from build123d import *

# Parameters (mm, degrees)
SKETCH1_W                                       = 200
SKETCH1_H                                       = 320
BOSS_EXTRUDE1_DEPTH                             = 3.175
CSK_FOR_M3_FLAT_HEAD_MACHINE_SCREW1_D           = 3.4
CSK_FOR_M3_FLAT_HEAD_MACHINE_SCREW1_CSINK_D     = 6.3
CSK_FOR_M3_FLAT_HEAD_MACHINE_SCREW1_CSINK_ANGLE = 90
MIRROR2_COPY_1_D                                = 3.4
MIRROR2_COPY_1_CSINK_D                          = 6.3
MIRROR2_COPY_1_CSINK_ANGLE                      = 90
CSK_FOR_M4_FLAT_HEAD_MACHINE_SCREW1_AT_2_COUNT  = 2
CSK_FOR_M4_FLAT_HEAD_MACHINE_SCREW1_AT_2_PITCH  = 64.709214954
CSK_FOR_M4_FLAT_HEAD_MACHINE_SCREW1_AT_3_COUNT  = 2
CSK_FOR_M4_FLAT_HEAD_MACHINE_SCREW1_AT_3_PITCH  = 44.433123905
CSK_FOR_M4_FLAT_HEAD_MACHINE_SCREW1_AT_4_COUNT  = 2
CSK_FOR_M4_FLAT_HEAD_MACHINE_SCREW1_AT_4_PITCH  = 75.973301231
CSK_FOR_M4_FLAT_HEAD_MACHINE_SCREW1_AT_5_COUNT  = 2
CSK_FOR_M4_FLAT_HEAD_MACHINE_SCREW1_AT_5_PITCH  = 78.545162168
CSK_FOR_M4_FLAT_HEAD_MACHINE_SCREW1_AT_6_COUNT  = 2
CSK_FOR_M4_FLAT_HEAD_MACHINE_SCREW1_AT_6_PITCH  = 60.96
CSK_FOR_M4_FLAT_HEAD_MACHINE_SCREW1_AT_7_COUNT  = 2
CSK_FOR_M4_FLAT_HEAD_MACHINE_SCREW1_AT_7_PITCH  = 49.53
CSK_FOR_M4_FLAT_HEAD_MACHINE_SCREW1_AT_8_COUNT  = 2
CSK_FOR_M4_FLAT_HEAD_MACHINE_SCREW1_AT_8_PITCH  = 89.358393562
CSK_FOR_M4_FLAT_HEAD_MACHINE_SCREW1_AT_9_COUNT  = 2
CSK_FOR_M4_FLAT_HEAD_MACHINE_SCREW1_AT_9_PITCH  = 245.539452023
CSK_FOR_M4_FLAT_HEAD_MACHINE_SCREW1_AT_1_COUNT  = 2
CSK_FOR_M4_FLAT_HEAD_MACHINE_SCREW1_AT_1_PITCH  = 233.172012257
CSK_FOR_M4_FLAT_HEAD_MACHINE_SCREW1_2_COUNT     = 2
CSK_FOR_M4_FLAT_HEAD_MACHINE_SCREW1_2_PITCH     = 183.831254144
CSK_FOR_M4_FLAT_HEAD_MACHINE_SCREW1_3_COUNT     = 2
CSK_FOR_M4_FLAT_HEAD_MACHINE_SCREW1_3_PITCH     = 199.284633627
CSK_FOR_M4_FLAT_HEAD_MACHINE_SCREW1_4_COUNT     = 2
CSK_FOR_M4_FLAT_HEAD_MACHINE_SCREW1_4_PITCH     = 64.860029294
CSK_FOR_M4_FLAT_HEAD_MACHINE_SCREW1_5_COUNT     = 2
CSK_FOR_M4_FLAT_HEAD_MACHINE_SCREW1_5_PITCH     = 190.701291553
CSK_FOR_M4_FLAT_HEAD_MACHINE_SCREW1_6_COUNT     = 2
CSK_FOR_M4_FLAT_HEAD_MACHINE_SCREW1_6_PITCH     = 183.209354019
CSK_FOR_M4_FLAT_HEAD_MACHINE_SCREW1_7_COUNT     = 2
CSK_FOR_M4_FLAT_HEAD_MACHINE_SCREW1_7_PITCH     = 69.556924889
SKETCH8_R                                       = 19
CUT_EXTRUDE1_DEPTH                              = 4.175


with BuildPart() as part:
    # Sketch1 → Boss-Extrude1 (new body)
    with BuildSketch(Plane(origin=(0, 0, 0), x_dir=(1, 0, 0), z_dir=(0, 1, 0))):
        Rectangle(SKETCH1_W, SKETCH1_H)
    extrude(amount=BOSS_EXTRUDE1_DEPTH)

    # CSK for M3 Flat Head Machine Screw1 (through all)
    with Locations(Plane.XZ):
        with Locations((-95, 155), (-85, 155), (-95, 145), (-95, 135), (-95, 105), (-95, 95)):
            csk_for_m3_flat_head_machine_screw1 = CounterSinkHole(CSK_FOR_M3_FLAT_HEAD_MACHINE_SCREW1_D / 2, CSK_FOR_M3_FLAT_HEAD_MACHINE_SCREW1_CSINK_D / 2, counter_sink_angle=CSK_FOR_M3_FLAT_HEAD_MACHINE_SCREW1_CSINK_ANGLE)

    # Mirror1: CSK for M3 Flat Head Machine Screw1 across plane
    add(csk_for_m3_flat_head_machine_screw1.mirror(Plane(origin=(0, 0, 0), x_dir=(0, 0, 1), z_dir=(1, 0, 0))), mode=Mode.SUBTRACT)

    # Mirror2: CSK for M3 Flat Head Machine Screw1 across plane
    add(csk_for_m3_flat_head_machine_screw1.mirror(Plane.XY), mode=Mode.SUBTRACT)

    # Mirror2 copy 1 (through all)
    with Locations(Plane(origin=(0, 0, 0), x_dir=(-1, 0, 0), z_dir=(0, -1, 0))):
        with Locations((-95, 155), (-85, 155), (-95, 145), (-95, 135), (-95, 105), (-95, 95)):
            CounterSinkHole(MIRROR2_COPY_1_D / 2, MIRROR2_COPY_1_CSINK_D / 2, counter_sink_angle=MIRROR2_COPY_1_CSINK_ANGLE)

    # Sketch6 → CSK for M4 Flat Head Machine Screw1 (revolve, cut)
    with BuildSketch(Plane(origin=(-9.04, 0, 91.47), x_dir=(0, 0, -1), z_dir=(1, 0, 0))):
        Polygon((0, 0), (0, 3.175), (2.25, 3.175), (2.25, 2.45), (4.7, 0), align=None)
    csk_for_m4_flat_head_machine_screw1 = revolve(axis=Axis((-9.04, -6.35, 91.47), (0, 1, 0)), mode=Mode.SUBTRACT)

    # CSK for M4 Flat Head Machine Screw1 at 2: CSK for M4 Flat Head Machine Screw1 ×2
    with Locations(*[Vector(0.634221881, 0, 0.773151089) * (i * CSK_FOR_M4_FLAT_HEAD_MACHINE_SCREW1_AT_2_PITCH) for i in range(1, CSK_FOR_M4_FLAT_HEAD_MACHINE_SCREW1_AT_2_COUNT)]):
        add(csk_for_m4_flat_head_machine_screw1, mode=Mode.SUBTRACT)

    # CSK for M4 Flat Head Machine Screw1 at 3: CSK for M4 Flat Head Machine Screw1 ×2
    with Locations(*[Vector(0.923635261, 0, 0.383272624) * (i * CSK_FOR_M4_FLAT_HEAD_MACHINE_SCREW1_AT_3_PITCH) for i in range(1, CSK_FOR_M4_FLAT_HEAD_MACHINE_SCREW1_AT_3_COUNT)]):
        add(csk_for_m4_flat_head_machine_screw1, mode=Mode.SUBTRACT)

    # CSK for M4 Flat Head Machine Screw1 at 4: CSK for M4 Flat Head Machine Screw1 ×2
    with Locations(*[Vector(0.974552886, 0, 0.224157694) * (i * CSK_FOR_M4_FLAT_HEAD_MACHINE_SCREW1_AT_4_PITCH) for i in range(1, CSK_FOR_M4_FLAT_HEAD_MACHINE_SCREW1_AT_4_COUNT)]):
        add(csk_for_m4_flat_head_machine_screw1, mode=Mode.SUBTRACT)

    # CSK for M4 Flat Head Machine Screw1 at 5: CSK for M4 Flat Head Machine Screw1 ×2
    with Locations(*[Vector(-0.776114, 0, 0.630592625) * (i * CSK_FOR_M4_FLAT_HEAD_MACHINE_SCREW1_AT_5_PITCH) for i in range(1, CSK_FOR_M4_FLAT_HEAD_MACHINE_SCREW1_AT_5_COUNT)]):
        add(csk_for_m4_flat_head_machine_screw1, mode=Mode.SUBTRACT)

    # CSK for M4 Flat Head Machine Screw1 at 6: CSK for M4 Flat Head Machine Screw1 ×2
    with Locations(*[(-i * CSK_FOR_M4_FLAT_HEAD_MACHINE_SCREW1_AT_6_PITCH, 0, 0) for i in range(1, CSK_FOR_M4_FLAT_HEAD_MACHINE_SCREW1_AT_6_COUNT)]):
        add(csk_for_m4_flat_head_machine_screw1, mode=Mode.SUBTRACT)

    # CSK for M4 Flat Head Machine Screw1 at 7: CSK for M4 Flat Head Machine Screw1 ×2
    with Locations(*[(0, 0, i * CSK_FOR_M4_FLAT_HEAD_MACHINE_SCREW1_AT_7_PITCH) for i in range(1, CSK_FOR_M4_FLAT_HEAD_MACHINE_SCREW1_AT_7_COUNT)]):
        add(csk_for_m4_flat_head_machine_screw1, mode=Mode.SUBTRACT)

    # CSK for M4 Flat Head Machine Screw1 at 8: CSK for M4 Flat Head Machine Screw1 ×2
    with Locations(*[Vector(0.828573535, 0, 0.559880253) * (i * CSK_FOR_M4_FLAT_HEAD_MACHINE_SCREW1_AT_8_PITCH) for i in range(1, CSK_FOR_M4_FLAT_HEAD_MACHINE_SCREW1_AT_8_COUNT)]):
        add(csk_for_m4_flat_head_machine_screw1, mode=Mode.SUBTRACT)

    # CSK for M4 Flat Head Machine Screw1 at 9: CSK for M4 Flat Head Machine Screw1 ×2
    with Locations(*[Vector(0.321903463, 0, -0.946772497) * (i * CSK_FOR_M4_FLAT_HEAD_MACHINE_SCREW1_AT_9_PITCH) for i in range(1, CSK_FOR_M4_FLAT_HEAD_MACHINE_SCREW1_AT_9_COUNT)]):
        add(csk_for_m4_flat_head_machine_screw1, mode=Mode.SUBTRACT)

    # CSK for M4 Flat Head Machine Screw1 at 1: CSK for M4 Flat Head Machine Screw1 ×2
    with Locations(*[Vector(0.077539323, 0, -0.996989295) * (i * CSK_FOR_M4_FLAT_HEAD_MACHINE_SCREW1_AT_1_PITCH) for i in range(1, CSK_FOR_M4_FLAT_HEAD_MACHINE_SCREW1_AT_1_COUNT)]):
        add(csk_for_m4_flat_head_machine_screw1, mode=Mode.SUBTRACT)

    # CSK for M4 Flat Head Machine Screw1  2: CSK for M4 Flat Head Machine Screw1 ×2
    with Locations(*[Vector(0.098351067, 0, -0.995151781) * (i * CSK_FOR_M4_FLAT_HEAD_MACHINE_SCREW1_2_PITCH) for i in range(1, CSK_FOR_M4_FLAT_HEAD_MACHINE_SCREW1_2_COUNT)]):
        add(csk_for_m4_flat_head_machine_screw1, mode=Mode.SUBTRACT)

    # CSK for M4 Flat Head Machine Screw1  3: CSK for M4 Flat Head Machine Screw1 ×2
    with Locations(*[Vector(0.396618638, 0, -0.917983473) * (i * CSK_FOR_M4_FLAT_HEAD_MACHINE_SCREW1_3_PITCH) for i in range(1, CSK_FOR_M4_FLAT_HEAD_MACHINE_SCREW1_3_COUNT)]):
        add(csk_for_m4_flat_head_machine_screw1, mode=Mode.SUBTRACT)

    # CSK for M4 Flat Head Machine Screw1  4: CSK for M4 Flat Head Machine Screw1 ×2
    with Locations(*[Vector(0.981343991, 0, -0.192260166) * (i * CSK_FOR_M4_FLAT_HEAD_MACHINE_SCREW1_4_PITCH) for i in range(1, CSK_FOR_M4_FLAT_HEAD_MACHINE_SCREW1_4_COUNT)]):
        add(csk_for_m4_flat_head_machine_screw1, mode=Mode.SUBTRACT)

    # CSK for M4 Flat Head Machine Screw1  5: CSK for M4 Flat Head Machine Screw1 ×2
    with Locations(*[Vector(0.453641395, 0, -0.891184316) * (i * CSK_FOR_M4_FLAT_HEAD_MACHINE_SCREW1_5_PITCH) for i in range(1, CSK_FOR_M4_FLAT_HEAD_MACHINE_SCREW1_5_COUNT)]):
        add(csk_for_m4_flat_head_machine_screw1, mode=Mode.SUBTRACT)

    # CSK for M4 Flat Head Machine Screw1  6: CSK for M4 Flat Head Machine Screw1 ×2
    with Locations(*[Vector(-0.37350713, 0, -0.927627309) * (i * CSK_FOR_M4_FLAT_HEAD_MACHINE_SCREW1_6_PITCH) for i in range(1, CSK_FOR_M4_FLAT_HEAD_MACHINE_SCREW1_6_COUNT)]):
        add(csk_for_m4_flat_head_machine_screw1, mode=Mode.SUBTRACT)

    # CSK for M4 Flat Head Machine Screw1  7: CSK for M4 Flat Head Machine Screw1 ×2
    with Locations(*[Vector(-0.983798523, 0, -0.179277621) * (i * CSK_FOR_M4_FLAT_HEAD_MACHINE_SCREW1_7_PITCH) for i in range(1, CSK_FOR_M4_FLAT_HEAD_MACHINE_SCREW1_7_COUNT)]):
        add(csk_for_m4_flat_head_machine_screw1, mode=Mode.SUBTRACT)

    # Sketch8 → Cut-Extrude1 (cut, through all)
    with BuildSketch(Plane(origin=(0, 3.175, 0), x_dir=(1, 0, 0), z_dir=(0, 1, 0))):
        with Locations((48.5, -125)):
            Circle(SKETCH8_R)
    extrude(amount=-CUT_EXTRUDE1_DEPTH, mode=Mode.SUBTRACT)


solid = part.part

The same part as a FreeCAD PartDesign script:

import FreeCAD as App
import Part
import Sketcher
from FreeCAD import Vector
Q = App.Units.Quantity


def add_polygon(sketch, points):
    """Adds a closed chain of lines whose ends are joined by coincident constraints."""
    first, n = sketch.GeometryCount, len(points)
    for a, b in zip(points, points[1:] + points[:1]):
        sketch.addGeometry(Part.LineSegment(App.Vector(*a, 0), App.Vector(*b, 0)), False)
    for i in range(n):
        sketch.addConstraint(Sketcher.Constraint("Coincident", first + i, 2, first + (i + 1) % n, 1))

doc = App.newDocument("Part")
params = doc.addObject("Spreadsheet::Sheet", "Params")
for row, (alias, value) in enumerate([
    ("sketch1_width", "200 mm"),
    ("sketch1_height", "320 mm"),
    ("pad1_length", "3.175 mm"),
    ("sketch2_diameter", "3.4 mm"),
    ("hole_diameter", "3.4 mm"),
    ("hole_csink_diameter", "6.3 mm"),
    ("sketch3_diameter", "3.4 mm"),
    ("hole2_diameter", "3.4 mm"),
    ("hole2_csink_diameter", "6.3 mm"),
    ("sketch4_height", "4.7 mm"),
    ("sketch4_height2", "2.25 mm"),
    ("groove_angle", "360 deg"),
    ("linearpattern_pitch", "64.709215 mm"),
    ("linearpattern2_pitch", "44.433124 mm"),
    ("linearpattern3_pitch", "75.973301 mm"),
    ("linearpattern4_pitch", "78.545162 mm"),
    ("linearpattern5_pitch", "60.96 mm"),
    ("linearpattern6_pitch", "49.53 mm"),
    ("linearpattern7_pitch", "89.358394 mm"),
    ("linearpattern8_pitch", "245.539452 mm"),
    ("linearpattern9_pitch", "233.172012 mm"),
    ("linearpattern10_pitch", "183.831254 mm"),
    ("linearpattern11_pitch", "199.284634 mm"),
    ("linearpattern12_pitch", "64.860029 mm"),
    ("linearpattern13_pitch", "190.701292 mm"),
    ("linearpattern14_pitch", "183.209354 mm"),
    ("linearpattern15_pitch", "69.556925 mm"),
    ("sketch5_diameter", "38 mm"),
], start=1):
    params.set(f"A{row}", alias)
    params.set(f"B{row}", "=" + value)
    params.setAlias(f"B{row}", alias)

body = doc.addObject("PartDesign::Body", "Body")

sketch1 = body.newObject("Sketcher::SketchObject", "Sketch")
sketch1.AttachmentSupport = (doc.getObject("XZ_Plane"), [""])
sketch1.MapMode = "FlatFace"
add_polygon(sketch1, [(-100, -160), (-100, 160), (100, 160), (100, -160)])
sketch1.addConstraint([
    Sketcher.Constraint("Vertical", 0),
    Sketcher.Constraint("Horizontal", 1),
    Sketcher.Constraint("Vertical", 2),
    Sketcher.Constraint("Horizontal", 3),
    Sketcher.Constraint("Symmetric", 0, 2, 2, 2, -1, 1),
    Sketcher.Constraint("DistanceX", 1, 1, 1, 2, 200.0),
    Sketcher.Constraint("DistanceY", 0, 1, 0, 2, 320.0),
])
sketch1.setExpression("Constraints[9]", "Params.sketch1_width")
sketch1.setExpression("Constraints[10]", "Params.sketch1_height")
pad1 = body.newObject("PartDesign::Pad", "Pad")
pad1.Profile = sketch1
pad1.setExpression("Length", "Params.pad1_length")
pad1.Reversed = True

sketch2 = body.newObject("Sketcher::SketchObject", "Sketch001")
sketch2.AttachmentSupport = (doc.getObject("XZ_Plane"), [""])
sketch2.MapMode = "FlatFace"
sketch2.addGeometry([
    Part.Circle(Vector(-95, 155, 0), Vector(0, 0, 1), 1.7),
    Part.Circle(Vector(-85, 155, 0), Vector(0, 0, 1), 1.7),
    Part.Circle(Vector(-95, 145, 0), Vector(0, 0, 1), 1.7),
    Part.Circle(Vector(-95, 135, 0), Vector(0, 0, 1), 1.7),
    Part.Circle(Vector(-95, 105, 0), Vector(0, 0, 1), 1.7),
    Part.Circle(Vector(-95, 95, 0), Vector(0, 0, 1), 1.7),
], False)
sketch2.addConstraint([
    Sketcher.Constraint("Equal", 0, 1),
    Sketcher.Constraint("Equal", 1, 2),
    Sketcher.Constraint("Equal", 2, 3),
    Sketcher.Constraint("Equal", 3, 4),
    Sketcher.Constraint("Equal", 4, 5),
    Sketcher.Constraint("Horizontal", 0, 3, 1, 3),
    Sketcher.Constraint("Vertical", 0, 3, 2, 3),
    Sketcher.Constraint("Vertical", 2, 3, 3, 3),
    Sketcher.Constraint("Vertical", 3, 3, 4, 3),
    Sketcher.Constraint("Vertical", 4, 3, 5, 3),
    Sketcher.Constraint("Diameter", 0, 3.4),
    Sketcher.Constraint("DistanceX", 0, 3, -1, 1, 95.0),
    Sketcher.Constraint("DistanceY", -1, 1, 0, 3, 155.0),
    Sketcher.Constraint("DistanceX", 1, 3, -1, 1, 85.0),
    Sketcher.Constraint("DistanceY", -1, 1, 2, 3, 145.0),
    Sketcher.Constraint("DistanceY", -1, 1, 3, 3, 135.0),
    Sketcher.Constraint("DistanceY", -1, 1, 4, 3, 105.0),
    Sketcher.Constraint("DistanceY", -1, 1, 5, 3, 95.0),
])
sketch2.setExpression("Constraints[10]", "Params.sketch2_diameter")
doc.recompute()
hole = body.newObject("PartDesign::Hole", "Hole")
hole.Profile = sketch2
hole.ThreadType = "None"
hole.setExpression("Diameter", "Params.hole_diameter")
hole.DepthType = "ThroughAll"
hole.HoleCutType = "Countersink"
hole.setExpression("HoleCutDiameter", "Params.hole_csink_diameter")
hole.HoleCutCountersinkAngle = 90
doc.recompute()

mirrored = body.newObject("PartDesign::Mirrored", "Mirrored")
mirrored.Originals = [hole]
mirrored.MirrorPlane = (doc.getObject("YZ_Plane"), [""])
body.Tip = mirrored
doc.recompute()

mirrored2 = body.newObject("PartDesign::Mirrored", "Mirrored001")
mirrored2.Originals = [hole]
mirrored2.MirrorPlane = (doc.getObject("XY_Plane"), [""])
body.Tip = mirrored2

sketch3 = body.newObject("Sketcher::SketchObject", "Sketch002")
sketch3.AttachmentSupport = (doc.getObject("XZ_Plane"), [""])
sketch3.MapMode = "FlatFace"
sketch3.addGeometry([
    Part.Circle(Vector(95, -155, 0), Vector(0, 0, 1), 1.7),
    Part.Circle(Vector(85, -155, 0), Vector(0, 0, 1), 1.7),
    Part.Circle(Vector(95, -145, 0), Vector(0, 0, 1), 1.7),
    Part.Circle(Vector(95, -135, 0), Vector(0, 0, 1), 1.7),
    Part.Circle(Vector(95, -105, 0), Vector(0, 0, 1), 1.7),
    Part.Circle(Vector(95, -95, 0), Vector(0, 0, 1), 1.7),
], False)
sketch3.addConstraint([
    Sketcher.Constraint("Equal", 0, 1),
    Sketcher.Constraint("Equal", 1, 2),
    Sketcher.Constraint("Equal", 2, 3),
    Sketcher.Constraint("Equal", 3, 4),
    Sketcher.Constraint("Equal", 4, 5),
    Sketcher.Constraint("Horizontal", 0, 3, 1, 3),
    Sketcher.Constraint("Vertical", 0, 3, 2, 3),
    Sketcher.Constraint("Vertical", 2, 3, 3, 3),
    Sketcher.Constraint("Vertical", 3, 3, 4, 3),
    Sketcher.Constraint("Vertical", 4, 3, 5, 3),
    Sketcher.Constraint("Diameter", 0, 3.4),
    Sketcher.Constraint("DistanceX", -1, 1, 0, 3, 95.0),
    Sketcher.Constraint("DistanceY", 0, 3, -1, 1, 155.0),
    Sketcher.Constraint("DistanceX", -1, 1, 1, 3, 85.0),
    Sketcher.Constraint("DistanceY", 2, 3, -1, 1, 145.0),
    Sketcher.Constraint("DistanceY", 3, 3, -1, 1, 135.0),
    Sketcher.Constraint("DistanceY", 4, 3, -1, 1, 105.0),
    Sketcher.Constraint("DistanceY", 5, 3, -1, 1, 95.0),
])
sketch3.setExpression("Constraints[10]", "Params.sketch3_diameter")
doc.recompute()
hole2 = body.newObject("PartDesign::Hole", "Hole001")
hole2.Profile = sketch3
hole2.ThreadType = "None"
hole2.setExpression("Diameter", "Params.hole2_diameter")
hole2.DepthType = "ThroughAll"
hole2.HoleCutType = "Countersink"
hole2.setExpression("HoleCutDiameter", "Params.hole2_csink_diameter")
hole2.HoleCutCountersinkAngle = 90

sketch4 = body.newObject("Sketcher::SketchObject", "Sketch003")
sketch4.AttachmentSupport = (doc.getObject("YZ_Plane"), [""])
sketch4.MapMode = "FlatFace"
sketch4.AttachmentOffset = App.Placement(Vector(0, 0, -9.04), App.Rotation())
add_polygon(sketch4, [(3.2, 91.5), (0, 91.5), (0, 86.8), (2.5, 89.2), (3.2, 89.2)])
sketch4.addGeometry(Part.LineSegment(Vector(0, 91.5, 0), Vector(3.2, 91.5, 0)), True)
sketch4.addConstraint([
    Sketcher.Constraint("Horizontal", 0),
    Sketcher.Constraint("Vertical", 1),
    Sketcher.Constraint("Horizontal", 3),
    Sketcher.Constraint("Vertical", 4),
    Sketcher.Constraint("Horizontal", 5),
    Sketcher.Constraint("Coincident", 5, 1, 0, 2),
    Sketcher.Constraint("PointOnObject", 0, 2, -2),
    Sketcher.Constraint("Vertical", 3, 2, 5, 2),
    Sketcher.Constraint("Angle", 2, Q("45 deg")),
    Sketcher.Constraint("DistanceY", 1, 2, 1, 1, 4.7),
    Sketcher.Constraint("DistanceY", 4, 1, 4, 2, 2.25),
    Sketcher.Constraint("DistanceX", 0, 2, 0, 1, 3.175),
    Sketcher.Constraint("DistanceY", -1, 1, 0, 2, 91.47),
])
sketch4.setExpression("Constraints[14]", "Params.sketch4_height")
sketch4.setExpression("Constraints[15]", "Params.sketch4_height2")
groove = body.newObject("PartDesign::Groove", "Groove")
groove.Profile = sketch4
groove.ReferenceAxis = (sketch4, ["Axis0"])
groove.setExpression("Angle", "Params.groove_angle")
doc.recompute()

datumline = body.newObject("PartDesign::Line", "DatumLine")
datumline.Placement = App.Placement(Vector(0, 0, 0), App.Rotation(Vector(0, 0, 1), Vector(0.634221881, 0, 0.773151089)))
linearpattern = body.newObject("PartDesign::LinearPattern", "LinearPattern")
linearpattern.Originals = [groove]
linearpattern.Direction = (datumline, [""])
linearpattern.Mode = "offset"
linearpattern.setExpression("Offset", "Params.linearpattern_pitch")
linearpattern.Occurrences = 2
body.Tip = linearpattern
doc.recompute()

datumline2 = body.newObject("PartDesign::Line", "DatumLine001")
datumline2.Placement = App.Placement(Vector(0, 0, 0), App.Rotation(Vector(0, 0, 1), Vector(0.923635261, 0, 0.383272624)))
linearpattern2 = body.newObject("PartDesign::LinearPattern", "LinearPattern001")
linearpattern2.Originals = [groove]
linearpattern2.Direction = (datumline2, [""])
linearpattern2.Mode = "offset"
linearpattern2.setExpression("Offset", "Params.linearpattern2_pitch")
linearpattern2.Occurrences = 2
body.Tip = linearpattern2
doc.recompute()

datumline3 = body.newObject("PartDesign::Line", "DatumLine002")
datumline3.Placement = App.Placement(Vector(0, 0, 0), App.Rotation(Vector(0, 0, 1), Vector(0.974552886, 0, 0.224157694)))
linearpattern3 = body.newObject("PartDesign::LinearPattern", "LinearPattern002")
linearpattern3.Originals = [groove]
linearpattern3.Direction = (datumline3, [""])
linearpattern3.Mode = "offset"
linearpattern3.setExpression("Offset", "Params.linearpattern3_pitch")
linearpattern3.Occurrences = 2
body.Tip = linearpattern3
doc.recompute()

datumline4 = body.newObject("PartDesign::Line", "DatumLine003")
datumline4.Placement = App.Placement(Vector(0, 0, 0), App.Rotation(Vector(0, 0, 1), Vector(-0.776114, 0, 0.630592625)))
linearpattern4 = body.newObject("PartDesign::LinearPattern", "LinearPattern003")
linearpattern4.Originals = [groove]
linearpattern4.Direction = (datumline4, [""])
linearpattern4.Mode = "offset"
linearpattern4.setExpression("Offset", "Params.linearpattern4_pitch")
linearpattern4.Occurrences = 2
body.Tip = linearpattern4
doc.recompute()

linearpattern5 = body.newObject("PartDesign::LinearPattern", "LinearPattern004")
linearpattern5.Originals = [groove]
linearpattern5.Direction = (doc.getObject("X_Axis"), [""])
linearpattern5.Mode = "offset"
linearpattern5.setExpression("Offset", "Params.linearpattern5_pitch")
linearpattern5.Occurrences = 2
linearpattern5.Reversed = True
body.Tip = linearpattern5
doc.recompute()

linearpattern6 = body.newObject("PartDesign::LinearPattern", "LinearPattern005")
linearpattern6.Originals = [groove]
linearpattern6.Direction = (doc.getObject("Z_Axis"), [""])
linearpattern6.Mode = "offset"
linearpattern6.setExpression("Offset", "Params.linearpattern6_pitch")
linearpattern6.Occurrences = 2
body.Tip = linearpattern6
doc.recompute()

datumline5 = body.newObject("PartDesign::Line", "DatumLine004")
datumline5.Placement = App.Placement(Vector(0, 0, 0), App.Rotation(Vector(0, 0, 1), Vector(0.828573535, 0, 0.559880253)))
linearpattern7 = body.newObject("PartDesign::LinearPattern", "LinearPattern006")
linearpattern7.Originals = [groove]
linearpattern7.Direction = (datumline5, [""])
linearpattern7.Mode = "offset"
linearpattern7.setExpression("Offset", "Params.linearpattern7_pitch")
linearpattern7.Occurrences = 2
body.Tip = linearpattern7
doc.recompute()

datumline6 = body.newObject("PartDesign::Line", "DatumLine005")
datumline6.Placement = App.Placement(Vector(0, 0, 0), App.Rotation(Vector(0, 0, 1), Vector(0.321903463, 0, -0.946772497)))
linearpattern8 = body.newObject("PartDesign::LinearPattern", "LinearPattern007")
linearpattern8.Originals = [groove]
linearpattern8.Direction = (datumline6, [""])
linearpattern8.Mode = "offset"
linearpattern8.setExpression("Offset", "Params.linearpattern8_pitch")
linearpattern8.Occurrences = 2
body.Tip = linearpattern8
doc.recompute()

datumline7 = body.newObject("PartDesign::Line", "DatumLine006")
datumline7.Placement = App.Placement(Vector(0, 0, 0), App.Rotation(Vector(0, 0, 1), Vector(0.077539323, 0, -0.996989295)))
linearpattern9 = body.newObject("PartDesign::LinearPattern", "LinearPattern008")
linearpattern9.Originals = [groove]
linearpattern9.Direction = (datumline7, [""])
linearpattern9.Mode = "offset"
linearpattern9.setExpression("Offset", "Params.linearpattern9_pitch")
linearpattern9.Occurrences = 2
body.Tip = linearpattern9
doc.recompute()

datumline8 = body.newObject("PartDesign::Line", "DatumLine007")
datumline8.Placement = App.Placement(Vector(0, 0, 0), App.Rotation(Vector(0, 0, 1), Vector(0.098351067, 0, -0.995151781)))
linearpattern10 = body.newObject("PartDesign::LinearPattern", "LinearPattern009")
linearpattern10.Originals = [groove]
linearpattern10.Direction = (datumline8, [""])
linearpattern10.Mode = "offset"
linearpattern10.setExpression("Offset", "Params.linearpattern10_pitch")
linearpattern10.Occurrences = 2
body.Tip = linearpattern10
doc.recompute()

datumline9 = body.newObject("PartDesign::Line", "DatumLine008")
datumline9.Placement = App.Placement(Vector(0, 0, 0), App.Rotation(Vector(0, 0, 1), Vector(0.396618638, 0, -0.917983473)))
linearpattern11 = body.newObject("PartDesign::LinearPattern", "LinearPattern010")
linearpattern11.Originals = [groove]
linearpattern11.Direction = (datumline9, [""])
linearpattern11.Mode = "offset"
linearpattern11.setExpression("Offset", "Params.linearpattern11_pitch")
linearpattern11.Occurrences = 2
body.Tip = linearpattern11
doc.recompute()

datumline10 = body.newObject("PartDesign::Line", "DatumLine009")
datumline10.Placement = App.Placement(Vector(0, 0, 0), App.Rotation(Vector(0, 0, 1), Vector(0.981343991, 0, -0.192260166)))
linearpattern12 = body.newObject("PartDesign::LinearPattern", "LinearPattern011")
linearpattern12.Originals = [groove]
linearpattern12.Direction = (datumline10, [""])
linearpattern12.Mode = "offset"
linearpattern12.setExpression("Offset", "Params.linearpattern12_pitch")
linearpattern12.Occurrences = 2
body.Tip = linearpattern12
doc.recompute()

datumline11 = body.newObject("PartDesign::Line", "DatumLine010")
datumline11.Placement = App.Placement(Vector(0, 0, 0), App.Rotation(Vector(0, 0, 1), Vector(0.453641395, 0, -0.891184316)))
linearpattern13 = body.newObject("PartDesign::LinearPattern", "LinearPattern012")
linearpattern13.Originals = [groove]
linearpattern13.Direction = (datumline11, [""])
linearpattern13.Mode = "offset"
linearpattern13.setExpression("Offset", "Params.linearpattern13_pitch")
linearpattern13.Occurrences = 2
body.Tip = linearpattern13
doc.recompute()

datumline12 = body.newObject("PartDesign::Line", "DatumLine011")
datumline12.Placement = App.Placement(Vector(0, 0, 0), App.Rotation(Vector(0, 0, 1), Vector(-0.37350713, 0, -0.927627309)))
linearpattern14 = body.newObject("PartDesign::LinearPattern", "LinearPattern013")
linearpattern14.Originals = [groove]
linearpattern14.Direction = (datumline12, [""])
linearpattern14.Mode = "offset"
linearpattern14.setExpression("Offset", "Params.linearpattern14_pitch")
linearpattern14.Occurrences = 2
body.Tip = linearpattern14
doc.recompute()

datumline13 = body.newObject("PartDesign::Line", "DatumLine012")
datumline13.Placement = App.Placement(Vector(0, 0, 0), App.Rotation(Vector(0, 0, 1), Vector(-0.983798523, 0, -0.179277621)))
linearpattern15 = body.newObject("PartDesign::LinearPattern", "LinearPattern014")
linearpattern15.Originals = [groove]
linearpattern15.Direction = (datumline13, [""])
linearpattern15.Mode = "offset"
linearpattern15.setExpression("Offset", "Params.linearpattern15_pitch")
linearpattern15.Occurrences = 2
body.Tip = linearpattern15

sketch5 = body.newObject("Sketcher::SketchObject", "Sketch004")
sketch5.AttachmentSupport = (doc.getObject("XZ_Plane"), [""])
sketch5.MapMode = "FlatFace"
sketch5.AttachmentOffset = App.Placement(Vector(0, 0, -3.175), App.Rotation())
sketch5.addGeometry(Part.Circle(Vector(48, 125, 0), Vector(0, 0, 1), 19), False)
sketch5.addConstraint([
    Sketcher.Constraint("Diameter", 0, 38.0),
    Sketcher.Constraint("DistanceY", -1, 1, 0, 3, 125.0),
    Sketcher.Constraint("DistanceX", -1, 1, 0, 3, 48.5),
])
sketch5.setExpression("Constraints[0]", "Params.sketch5_diameter")
pocket1 = body.newObject("PartDesign::Pocket", "Pocket")
pocket1.Profile = sketch5
pocket1.Type = "ThroughAll"
pocket1.Reversed = True

doc.recompute()
